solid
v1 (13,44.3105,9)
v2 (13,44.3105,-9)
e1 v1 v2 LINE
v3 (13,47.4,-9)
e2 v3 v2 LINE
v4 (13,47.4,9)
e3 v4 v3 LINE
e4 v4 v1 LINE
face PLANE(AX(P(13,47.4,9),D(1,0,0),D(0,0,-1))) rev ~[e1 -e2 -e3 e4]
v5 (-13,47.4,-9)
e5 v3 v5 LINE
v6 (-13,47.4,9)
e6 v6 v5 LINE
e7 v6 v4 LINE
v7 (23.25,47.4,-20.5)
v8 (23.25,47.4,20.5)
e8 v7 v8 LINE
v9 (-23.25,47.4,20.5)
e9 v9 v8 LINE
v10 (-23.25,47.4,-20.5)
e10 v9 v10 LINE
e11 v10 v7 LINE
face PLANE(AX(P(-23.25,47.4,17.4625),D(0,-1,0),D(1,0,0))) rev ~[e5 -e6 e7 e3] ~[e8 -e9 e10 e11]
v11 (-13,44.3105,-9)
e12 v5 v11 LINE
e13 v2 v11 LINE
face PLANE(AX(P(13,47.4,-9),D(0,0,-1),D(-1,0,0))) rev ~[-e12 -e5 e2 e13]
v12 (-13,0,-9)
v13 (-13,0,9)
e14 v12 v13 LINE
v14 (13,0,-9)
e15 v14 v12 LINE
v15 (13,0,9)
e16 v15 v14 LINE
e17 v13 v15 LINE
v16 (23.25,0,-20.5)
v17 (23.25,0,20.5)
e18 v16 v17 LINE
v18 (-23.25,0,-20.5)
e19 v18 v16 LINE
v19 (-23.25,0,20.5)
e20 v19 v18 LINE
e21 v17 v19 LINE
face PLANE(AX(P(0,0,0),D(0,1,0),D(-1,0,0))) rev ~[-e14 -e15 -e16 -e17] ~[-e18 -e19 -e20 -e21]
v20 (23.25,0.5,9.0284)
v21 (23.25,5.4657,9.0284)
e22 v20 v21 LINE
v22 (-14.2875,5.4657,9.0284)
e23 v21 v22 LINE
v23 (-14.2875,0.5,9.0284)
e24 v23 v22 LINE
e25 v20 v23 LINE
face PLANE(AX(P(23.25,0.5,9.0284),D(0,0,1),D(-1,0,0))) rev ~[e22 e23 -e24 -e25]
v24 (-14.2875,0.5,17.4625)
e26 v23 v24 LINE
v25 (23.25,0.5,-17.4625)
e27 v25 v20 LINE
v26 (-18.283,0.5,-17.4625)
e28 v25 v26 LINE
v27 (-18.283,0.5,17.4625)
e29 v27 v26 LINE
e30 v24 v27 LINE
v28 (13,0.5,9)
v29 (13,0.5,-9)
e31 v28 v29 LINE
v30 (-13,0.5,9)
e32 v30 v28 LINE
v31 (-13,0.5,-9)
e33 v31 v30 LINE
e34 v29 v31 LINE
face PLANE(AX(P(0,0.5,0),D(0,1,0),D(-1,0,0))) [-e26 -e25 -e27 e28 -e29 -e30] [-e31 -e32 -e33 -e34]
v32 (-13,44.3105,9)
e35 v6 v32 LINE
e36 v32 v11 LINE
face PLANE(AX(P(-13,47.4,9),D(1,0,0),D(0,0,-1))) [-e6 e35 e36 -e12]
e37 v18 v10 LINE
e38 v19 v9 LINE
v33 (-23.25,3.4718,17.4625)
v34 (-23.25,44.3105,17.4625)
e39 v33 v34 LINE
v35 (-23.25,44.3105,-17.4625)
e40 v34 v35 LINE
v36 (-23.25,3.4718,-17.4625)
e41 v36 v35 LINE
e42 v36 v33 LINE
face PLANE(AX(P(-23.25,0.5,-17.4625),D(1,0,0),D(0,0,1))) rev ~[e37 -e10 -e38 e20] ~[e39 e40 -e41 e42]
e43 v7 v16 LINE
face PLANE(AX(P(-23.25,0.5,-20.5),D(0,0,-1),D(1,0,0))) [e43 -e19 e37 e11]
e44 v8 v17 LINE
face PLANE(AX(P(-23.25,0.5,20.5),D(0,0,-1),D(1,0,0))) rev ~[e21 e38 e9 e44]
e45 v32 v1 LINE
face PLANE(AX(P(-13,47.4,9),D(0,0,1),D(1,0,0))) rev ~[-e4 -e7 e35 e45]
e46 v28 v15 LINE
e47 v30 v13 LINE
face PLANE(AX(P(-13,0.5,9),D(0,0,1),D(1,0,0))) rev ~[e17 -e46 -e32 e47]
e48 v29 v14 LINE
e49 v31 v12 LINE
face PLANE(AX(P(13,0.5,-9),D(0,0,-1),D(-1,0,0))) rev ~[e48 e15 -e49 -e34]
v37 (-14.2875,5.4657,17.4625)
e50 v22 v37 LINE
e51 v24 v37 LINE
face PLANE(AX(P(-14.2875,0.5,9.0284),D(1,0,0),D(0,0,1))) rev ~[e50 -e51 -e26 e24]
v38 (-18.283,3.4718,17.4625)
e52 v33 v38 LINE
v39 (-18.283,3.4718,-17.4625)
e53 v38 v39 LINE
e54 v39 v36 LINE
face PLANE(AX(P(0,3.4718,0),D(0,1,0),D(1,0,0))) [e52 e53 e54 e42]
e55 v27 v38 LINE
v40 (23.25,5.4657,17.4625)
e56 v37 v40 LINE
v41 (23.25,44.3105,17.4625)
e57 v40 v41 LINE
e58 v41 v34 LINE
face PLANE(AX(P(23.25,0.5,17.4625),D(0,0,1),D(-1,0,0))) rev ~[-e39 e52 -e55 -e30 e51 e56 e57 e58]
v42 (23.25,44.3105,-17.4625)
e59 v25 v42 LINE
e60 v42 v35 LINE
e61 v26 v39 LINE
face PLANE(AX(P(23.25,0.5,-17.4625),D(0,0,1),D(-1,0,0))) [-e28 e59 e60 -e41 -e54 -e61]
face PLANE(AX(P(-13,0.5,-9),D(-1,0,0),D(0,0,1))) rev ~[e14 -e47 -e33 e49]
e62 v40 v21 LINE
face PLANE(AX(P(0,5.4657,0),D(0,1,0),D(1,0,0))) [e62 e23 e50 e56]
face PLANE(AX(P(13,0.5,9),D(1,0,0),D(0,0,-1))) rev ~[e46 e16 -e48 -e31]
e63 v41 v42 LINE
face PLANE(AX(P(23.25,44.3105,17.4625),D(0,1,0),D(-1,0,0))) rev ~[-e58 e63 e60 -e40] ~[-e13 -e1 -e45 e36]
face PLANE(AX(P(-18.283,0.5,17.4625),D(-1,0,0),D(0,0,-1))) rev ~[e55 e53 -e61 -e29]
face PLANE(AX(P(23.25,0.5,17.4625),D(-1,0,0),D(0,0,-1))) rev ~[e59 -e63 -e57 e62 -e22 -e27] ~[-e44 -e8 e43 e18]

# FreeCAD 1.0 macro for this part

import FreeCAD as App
import Part
import Sketcher


def add_polygon(sketch, points):
    """Adds a closed chain of lines whose ends are joined by coincident constraints."""
    first, n = sketch.GeometryCount, len(points)
    for a, b in zip(points, points[1:] + points[:1]):
        sketch.addGeometry(Part.LineSegment(App.Vector(*a, 0), App.Vector(*b, 0)), False)
    for i in range(n):
        sketch.addConstraint(Sketcher.Constraint("Coincident", first + i, 2, first + (i + 1) % n, 1))

doc = App.newDocument("Part")
params = doc.addObject("Spreadsheet::Sheet", "Params")
for row, (alias, value) in enumerate([
    ("sketch1_height", "41 mm"),
    ("sketch1_width", "46.5 mm"),
    ("pad1_length", "0.5 mm"),
    ("sketch2_width", "26 mm"),
    ("sketch2_height", "18 mm"),
    ("pocket1_length", "25.4 mm"),
    ("sketch3_width", "46.5 mm"),
    ("pad2_length", "46.9 mm"),
    ("sketch4_width", "46.5 mm"),
    ("pad3_length", "46.9 mm"),
    ("sketch5_width", "46.5 mm"),
    ("pad4_length", "35 mm"),
    ("pad5_length", "2.9718 mm"),
    ("sketch7_width", "26 mm"),
    ("sketch7_height", "18 mm"),
    ("pocket2_length", "4.9657 mm"),
    ("pad6_length", "4.9657 mm"),
], start=1):
    params.set(f"A{row}", alias)
    params.set(f"B{row}", "=" + value)
    params.setAlias(f"B{row}", alias)

body = doc.addObject("PartDesign::Body", "Body")

# Sketch on XZ plane
sketch1 = body.newObject("Sketcher::SketchObject", "Sketch")
sketch1.AttachmentSupport = (doc.getObject("XZ_Plane"), [""])
sketch1.MapMode = "FlatFace"
add_polygon(sketch1, [(23, -20), (-23, -20), (-23, 20), (23, 20)])  # lines 0-3
sketch1.addConstraint(Sketcher.Constraint("Horizontal", 0))
sketch1.addConstraint(Sketcher.Constraint("Vertical", 1))
sketch1.addConstraint(Sketcher.Constraint("Horizontal", 2))
sketch1.addConstraint(Sketcher.Constraint("Vertical", 3))
sketch1.addConstraint(Sketcher.Constraint("Symmetric", 0, 2, 2, 2, -1, 1))
sketch1.addConstraint(Sketcher.Constraint("DistanceY", 1, 1, 1, 2, 41.0))
sketch1.addConstraint(Sketcher.Constraint("DistanceX", 0, 2, 0, 1, 46.5))
sketch1.setExpression("Constraints[9]", "Params.sketch1_height")
sketch1.setExpression("Constraints[10]", "Params.sketch1_width")
pad1 = body.newObject("PartDesign::Pad", "Pad")
pad1.Profile = sketch1
pad1.setExpression("Length", "Params.pad1_length")
pad1.Reversed = True

# Sketch on XZ plane
sketch2 = body.newObject("Sketcher::SketchObject", "Sketch001")
sketch2.AttachmentSupport = (doc.getObject("XZ_Plane"), [""])
sketch2.MapMode = "FlatFace"
sketch2.AttachmentOffset = App.Placement(App.Vector(0, 0, -0.5), App.Rotation())
add_polygon(sketch2, [(-13, -9), (-13, 9), (13, 9), (13, -9)])  # lines 0-3
sketch2.addConstraint(Sketcher.Constraint("Vertical", 0))
sketch2.addConstraint(Sketcher.Constraint("Horizontal", 1))
sketch2.addConstraint(Sketcher.Constraint("Vertical", 2))
sketch2.addConstraint(Sketcher.Constraint("Horizontal", 3))
sketch2.addConstraint(Sketcher.Constraint("Symmetric", 0, 2, 2, 2, -1, 1))
sketch2.addConstraint(Sketcher.Constraint("DistanceX", 1, 1, 1, 2, 26.0))
sketch2.addConstraint(Sketcher.Constraint("DistanceY", 0, 1, 0, 2, 18.0))
sketch2.setExpression("Constraints[9]", "Params.sketch2_width")
sketch2.setExpression("Constraints[10]", "Params.sketch2_height")
pocket1 = body.newObject("PartDesign::Pocket", "Pocket")
pocket1.Profile = sketch2
pocket1.setExpression("Length", "Params.pocket1_length")
pocket1.Reversed = True

# Sketch on XZ plane
sketch3 = body.newObject("Sketcher::SketchObject", "Sketch002")
sketch3.AttachmentSupport = (doc.getObject("XZ_Plane"), [""])
sketch3.MapMode = "FlatFace"
sketch3.AttachmentOffset = App.Placement(App.Vector(0, 0, -0.5), App.Rotation())
add_polygon(sketch3, [(23.2, 17.5), (-23.2, 17.5), (-23.2, 20.5), (23.2, 20.5)])  # lines 0-3
sketch3.addConstraint(Sketcher.Constraint("Horizontal", 0))
sketch3.addConstraint(Sketcher.Constraint("Vertical", 1))
sketch3.addConstraint(Sketcher.Constraint("Horizontal", 2))
sketch3.addConstraint(Sketcher.Constraint("Vertical", 3))
sketch3.addConstraint(Sketcher.Constraint("DistanceX", 0, 2, 0, 1, 46.5))
sketch3.addConstraint(Sketcher.Constraint("DistanceY", -1, 1, 1, 2, 20.5))
sketch3.addConstraint(Sketcher.Constraint("DistanceX", 0, 2, -1, 1, 23.25))
sketch3.addConstraint(Sketcher.Constraint("DistanceY", 1, 1, 1, 2, 3.0375))
sketch3.setExpression("Constraints[8]", "Params.sketch3_width")
pad2 = body.newObject("PartDesign::Pad", "Pad001")
pad2.Profile = sketch3
pad2.setExpression("Length", "Params.pad2_length")
pad2.Reversed = True

# Sketch on XZ plane
sketch4 = body.newObject("Sketcher::SketchObject", "Sketch003")
sketch4.AttachmentSupport = (doc.getObject("XZ_Plane"), [""])
sketch4.MapMode = "FlatFace"
sketch4.AttachmentOffset = App.Placement(App.Vector(0, 0, -0.5), App.Rotation())
add_polygon(sketch4, [(23.2, -20.5), (-23.2, -20.5), (-23.2, -17.5), (23.2, -17.5)])  # lines 0-3
sketch4.addConstraint(Sketcher.Constraint("Horizontal", 0))
sketch4.addConstraint(Sketcher.Constraint("Vertical", 1))
sketch4.addConstraint(Sketcher.Constraint("Horizontal", 2))
sketch4.addConstraint(Sketcher.Constraint("Vertical", 3))
sketch4.addConstraint(Sketcher.Constraint("DistanceX", 0, 2, 0, 1, 46.5))
sketch4.addConstraint(Sketcher.Constraint("DistanceY", 0, 2, -1, 1, 20.5))
sketch4.addConstraint(Sketcher.Constraint("DistanceX", 0, 2, -1, 1, 23.25))
sketch4.addConstraint(Sketcher.Constraint("DistanceY", 1, 1, 1, 2, 3.0375))
sketch4.setExpression("Constraints[8]", "Params.sketch4_width")
pad3 = body.newObject("PartDesign::Pad", "Pad002")
pad3.Profile = sketch4
pad3.setExpression("Length", "Params.pad3_length")
pad3.Reversed = True

# Sketch on XY plane
sketch5 = body.newObject("Sketcher::SketchObject", "Sketch004")
sketch5.AttachmentSupport = (doc.getObject("XY_Plane"), [""])
sketch5.MapMode = "FlatFace"
sketch5.AttachmentOffset = App.Placement(App.Vector(0, 0, 17.4625), App.Rotation())
add_polygon(sketch5, [(23.2, 44.3), (-23.2, 44.3), (-23.2, 47.4), (23.2, 47.4)])  # lines 0-3
sketch5.addConstraint(Sketcher.Constraint("Horizontal", 0))
sketch5.addConstraint(Sketcher.Constraint("Vertical", 1))
sketch5.addConstraint(Sketcher.Constraint("Horizontal", 2))
sketch5.addConstraint(Sketcher.Constraint("Vertical", 3))
sketch5.addConstraint(Sketcher.Constraint("DistanceX", 0, 2, 0, 1, 46.5))
sketch5.addConstraint(Sketcher.Constraint("DistanceY", -1, 1, 1, 2, 47.4))
sketch5.addConstraint(Sketcher.Constraint("DistanceX", 0, 2, -1, 1, 23.25))
sketch5.addConstraint(Sketcher.Constraint("DistanceY", 1, 1, 1, 2, 3.0895))
sketch5.setExpression("Constraints[8]", "Params.sketch5_width")
pad4 = body.newObject("PartDesign::Pad", "Pad003")
pad4.Profile = sketch5
pad4.setExpression("Length", "Params.pad4_length")
pad4.Reversed = True

# Sketch on XZ plane
sketch6 = body.newObject("Sketcher::SketchObject", "Sketch005")
sketch6.AttachmentSupport = (doc.getObject("XZ_Plane"), [""])
sketch6.MapMode = "FlatFace"
sketch6.AttachmentOffset = App.Placement(App.Vector(0, 0, -0.5), App.Rotation())
add_polygon(sketch6, [(-23.2, -17.5), (-23.2, 17.5), (-18.3, 17.5), (-18.3, -17.5)])  # lines 0-3
sketch6.addConstraint(Sketcher.Constraint("Vertical", 0))
sketch6.addConstraint(Sketcher.Constraint("Horizontal", 1))
sketch6.addConstraint(Sketcher.Constraint("Vertical", 2))
sketch6.addConstraint(Sketcher.Constraint("Horizontal", 3))
sketch6.addConstraint(Sketcher.Constraint("DistanceX", 1, 1, 1, 2, 4.967))
sketch6.addConstraint(Sketcher.Constraint("DistanceY", 0, 1, 0, 2, 34.925))
sketch6.addConstraint(Sketcher.Constraint("DistanceX", 0, 2, -1, 1, 23.25))
sketch6.addConstraint(Sketcher.Constraint("DistanceY", -1, 1, 0, 2, 17.4625))
pad5 = body.newObject("PartDesign::Pad", "Pad004")
pad5.Profile = sketch6
pad5.setExpression("Length", "Params.pad5_length")
pad5.Reversed = True

# Sketch on XZ plane
sketch7 = body.newObject("Sketcher::SketchObject", "Sketch006")
sketch7.AttachmentSupport = (doc.getObject("XZ_Plane"), [""])
sketch7.MapMode = "FlatFace"
sketch7.AttachmentOffset = App.Placement(App.Vector(0, 0, -47.4), App.Rotation())
add_polygon(sketch7, [(-13, -9), (-13, 9), (13, 9), (13, -9)])  # lines 0-3
sketch7.addConstraint(Sketcher.Constraint("Vertical", 0))
sketch7.addConstraint(Sketcher.Constraint("Horizontal", 1))
sketch7.addConstraint(Sketcher.Constraint("Vertical", 2))
sketch7.addConstraint(Sketcher.Constraint("Horizontal", 3))
sketch7.addConstraint(Sketcher.Constraint("Symmetric", 0, 2, 2, 2, -1, 1))
sketch7.addConstraint(Sketcher.Constraint("DistanceX", 1, 1, 1, 2, 26.0))
sketch7.addConstraint(Sketcher.Constraint("DistanceY", 0, 1, 0, 2, 18.0))
sketch7.setExpression("Constraints[9]", "Params.sketch7_width")
sketch7.setExpression("Constraints[10]", "Params.sketch7_height")
pocket2 = body.newObject("PartDesign::Pocket", "Pocket001")
pocket2.Profile = sketch7
pocket2.setExpression("Length", "Params.pocket2_length")
pocket2.Reversed = True

# Sketch on XZ plane
sketch8 = body.newObject("Sketcher::SketchObject", "Sketch007")
sketch8.AttachmentSupport = (doc.getObject("XZ_Plane"), [""])
sketch8.MapMode = "FlatFace"
sketch8.AttachmentOffset = App.Placement(App.Vector(0, 0, -0.5), App.Rotation())
add_polygon(sketch8, [(-14, 17), (23, 17), (23, 9), (-14, 9)])  # lines 0-3
sketch8.addConstraint(Sketcher.Constraint("Horizontal", 0))
sketch8.addConstraint(Sketcher.Constraint("Vertical", 1))
sketch8.addConstraint(Sketcher.Constraint("Horizontal", 2))
sketch8.addConstraint(Sketcher.Constraint("Vertical", 3))
sketch8.addConstraint(Sketcher.Constraint("DistanceY", 1, 2, 1, 1, 8.434))
sketch8.addConstraint(Sketcher.Constraint("DistanceX", -1, 1, 0, 2, 23.25))
sketch8.addConstraint(Sketcher.Constraint("DistanceX", 0, 1, 0, 2, 37.5375))
sketch8.addConstraint(Sketcher.Constraint("DistanceY", -1, 1, 0, 2, 17.4625))
pad6 = body.newObject("PartDesign::Pad", "Pad005")
pad6.Profile = sketch8
pad6.setExpression("Length", "Params.pad6_length")
pad6.Reversed = True

doc.recompute()
